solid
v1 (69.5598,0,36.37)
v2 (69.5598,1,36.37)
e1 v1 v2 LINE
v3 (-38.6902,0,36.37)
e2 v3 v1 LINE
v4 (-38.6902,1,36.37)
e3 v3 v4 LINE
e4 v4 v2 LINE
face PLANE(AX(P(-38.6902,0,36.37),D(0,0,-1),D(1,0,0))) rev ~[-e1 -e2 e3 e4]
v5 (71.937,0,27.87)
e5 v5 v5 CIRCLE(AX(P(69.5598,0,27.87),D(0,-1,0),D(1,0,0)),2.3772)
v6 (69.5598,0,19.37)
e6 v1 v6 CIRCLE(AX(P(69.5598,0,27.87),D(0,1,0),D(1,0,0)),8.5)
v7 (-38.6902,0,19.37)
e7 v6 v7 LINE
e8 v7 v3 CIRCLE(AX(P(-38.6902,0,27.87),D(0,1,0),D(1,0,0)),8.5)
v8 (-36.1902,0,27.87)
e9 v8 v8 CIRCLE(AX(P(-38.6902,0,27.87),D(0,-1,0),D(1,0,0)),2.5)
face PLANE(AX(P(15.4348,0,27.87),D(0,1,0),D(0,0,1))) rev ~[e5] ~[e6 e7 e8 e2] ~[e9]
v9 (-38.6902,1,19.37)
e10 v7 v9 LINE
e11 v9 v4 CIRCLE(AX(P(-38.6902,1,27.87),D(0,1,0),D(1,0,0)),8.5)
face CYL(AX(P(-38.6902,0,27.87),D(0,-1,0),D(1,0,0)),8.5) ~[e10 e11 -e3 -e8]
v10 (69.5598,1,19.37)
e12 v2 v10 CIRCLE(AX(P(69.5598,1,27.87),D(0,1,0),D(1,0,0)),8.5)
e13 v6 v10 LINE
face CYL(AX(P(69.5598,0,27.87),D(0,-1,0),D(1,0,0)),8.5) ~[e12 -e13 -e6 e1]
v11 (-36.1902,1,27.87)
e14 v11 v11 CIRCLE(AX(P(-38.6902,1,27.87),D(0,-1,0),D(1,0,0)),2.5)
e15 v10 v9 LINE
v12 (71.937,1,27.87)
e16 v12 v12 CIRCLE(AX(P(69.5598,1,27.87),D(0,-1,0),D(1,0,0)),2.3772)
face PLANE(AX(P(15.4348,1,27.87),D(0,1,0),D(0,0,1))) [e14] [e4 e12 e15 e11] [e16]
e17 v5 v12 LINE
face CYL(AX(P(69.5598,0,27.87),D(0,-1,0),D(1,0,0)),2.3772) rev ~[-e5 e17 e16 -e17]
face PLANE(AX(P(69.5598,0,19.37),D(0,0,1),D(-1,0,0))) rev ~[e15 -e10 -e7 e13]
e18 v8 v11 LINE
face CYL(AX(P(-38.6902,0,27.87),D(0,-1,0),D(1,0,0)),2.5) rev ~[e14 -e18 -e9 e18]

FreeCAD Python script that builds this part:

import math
import FreeCAD as App
import Part
import Sketcher

doc = App.newDocument("Part")
body = doc.addObject("PartDesign::Body", "Body")

# Sketch on XZ plane
sketch1 = body.newObject("Sketcher::SketchObject", "Sketch")
sketch1.AttachmentSupport = (doc.getObject("XZ_Plane"), [""])
sketch1.MapMode = "FlatFace"
sketch1.addGeometry([
    Part.LineSegment(App.Vector(-38.7, 19.4, 0), App.Vector(69.6, 19.4, 0)),  # 0
    Part.ArcOfCircle(Part.Circle(App.Vector(69.6, 27.9, 0), App.Vector(0, 0, 1), 8.5), math.radians(-90), math.radians(90)),  # 1
    Part.LineSegment(App.Vector(69.6, 36.4, 0), App.Vector(-38.7, 36.4, 0)),  # 2
    Part.ArcOfCircle(Part.Circle(App.Vector(-38.7, 27.9, 0), App.Vector(0, 0, 1), 8.5), math.radians(90), math.radians(270)),  # 3
    Part.Circle(App.Vector(-38.7, 27.9, 0), App.Vector(0, 0, 1), 2.5),  # 4
    Part.Circle(App.Vector(69.6, 27.9, 0), App.Vector(0, 0, 1), 2.4),  # 5
], False)
sketch1.addConstraint([
    Sketcher.Constraint("Tangent", 0, 2, 1, 1),
    Sketcher.Constraint("Tangent", 1, 2, 2, 1),
    Sketcher.Constraint("Tangent", 2, 2, 3, 1),
    Sketcher.Constraint("Tangent", 3, 2, 0, 1),
    Sketcher.Constraint("Horizontal", 0),
    Sketcher.Constraint("Horizontal", 2),
    Sketcher.Constraint("Coincident", 4, 3, 3, 3),
    Sketcher.Constraint("Coincident", 5, 3, 1, 3),
    Sketcher.Constraint("Diameter", 4, 5.0),
    Sketcher.Constraint("Radius", 1, 8.5),
    Sketcher.Constraint("Diameter", 5, 4.7544),
    Sketcher.Constraint("DistanceX", 0, 1, 0, 2, 108.25),
    Sketcher.Constraint("DistanceY", -1, 1, 1, 3, 27.87),
    Sketcher.Constraint("DistanceX", -1, 1, 1, 3, 69.5598),
])
pad1 = body.newObject("PartDesign::Pad", "Pad")
pad1.Profile = sketch1
pad1.Length = 1
pad1.Reversed = True

doc.recompute()
